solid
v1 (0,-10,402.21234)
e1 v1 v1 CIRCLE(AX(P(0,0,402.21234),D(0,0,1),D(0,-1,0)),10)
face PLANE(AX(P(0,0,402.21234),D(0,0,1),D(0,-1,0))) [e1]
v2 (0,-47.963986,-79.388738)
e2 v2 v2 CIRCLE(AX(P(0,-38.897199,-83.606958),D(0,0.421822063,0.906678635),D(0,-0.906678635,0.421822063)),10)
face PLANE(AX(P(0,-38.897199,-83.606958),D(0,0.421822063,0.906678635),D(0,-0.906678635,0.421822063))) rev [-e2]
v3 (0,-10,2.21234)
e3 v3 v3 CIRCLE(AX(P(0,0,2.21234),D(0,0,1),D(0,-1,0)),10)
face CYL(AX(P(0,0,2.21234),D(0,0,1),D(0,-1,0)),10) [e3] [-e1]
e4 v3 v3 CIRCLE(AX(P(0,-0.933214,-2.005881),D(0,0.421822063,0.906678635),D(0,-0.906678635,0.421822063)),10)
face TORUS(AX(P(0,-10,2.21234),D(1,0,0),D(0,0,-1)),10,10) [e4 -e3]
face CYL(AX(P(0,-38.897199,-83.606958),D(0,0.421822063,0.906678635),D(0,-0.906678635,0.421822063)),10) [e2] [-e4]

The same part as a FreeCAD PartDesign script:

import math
import FreeCAD as App
import Part
import Sketcher
Q = App.Units.Quantity

doc = App.newDocument("Part")
body = doc.addObject("PartDesign::Body", "Body")

sketch1 = body.newObject("Sketcher::SketchObject", "Sketch")
sketch1.AttachmentSupport = (doc.getObject("XY_Plane"), [""])
sketch1.MapMode = "FlatFace"
sketch1.AttachmentOffset = App.Placement(App.Vector(0, 0, 402.21234), App.Rotation())
sketch1.addGeometry(Part.Circle(App.Vector(0, 0, 0), App.Vector(0, 0, 1), 10), False)
sketch1.addConstraint([
    Sketcher.Constraint("Coincident", 0, 3, -1, 1),
    Sketcher.Constraint("Diameter", 0, Q("20 mm")),
])

sketch2 = body.newObject("Sketcher::SketchObject", "Sketch001")
sketch2.AttachmentSupport = (doc.getObject("YZ_Plane"), [""])
sketch2.MapMode = "FlatFace"
sketch2.addGeometry([
    Part.LineSegment(App.Vector(0, 402.2, 0), App.Vector(0, 2.2, 0)),
    Part.ArcOfCircle(Part.Circle(App.Vector(-10, 2.2, 0), App.Vector(0, 0, 1), 10), math.radians(-25), math.radians(0)),
    Part.LineSegment(App.Vector(-0.9, -2, 0), App.Vector(-38.9, -83.6, 0)),
], False)
sketch2.addConstraint([
    Sketcher.Constraint("Tangent", 0, 2, 1, 2),
    Sketcher.Constraint("Tangent", 1, 1, 2, 1),
    Sketcher.Constraint("Vertical", 0),
    Sketcher.Constraint("PointOnObject", 0, 1, -2),
    Sketcher.Constraint("Radius", 1, Q("10 mm")),
    Sketcher.Constraint("DistanceY", 0, 2, 0, 1, Q("400 mm")),
    Sketcher.Constraint("Distance", 2, Q("90 mm")),
    Sketcher.Constraint("DistanceX", 2, 2, -1, 1, Q("38.897199 mm")),
    Sketcher.Constraint("DistanceY", -1, 1, 1, 3, Q("2.21234 mm")),
])
doc.recompute()

additivepipe = body.newObject("PartDesign::AdditivePipe", "AdditivePipe")
additivepipe.Profile = sketch1
additivepipe.Spine = (sketch2, ["Edge1", "Edge2", "Edge3"])

doc.recompute()
